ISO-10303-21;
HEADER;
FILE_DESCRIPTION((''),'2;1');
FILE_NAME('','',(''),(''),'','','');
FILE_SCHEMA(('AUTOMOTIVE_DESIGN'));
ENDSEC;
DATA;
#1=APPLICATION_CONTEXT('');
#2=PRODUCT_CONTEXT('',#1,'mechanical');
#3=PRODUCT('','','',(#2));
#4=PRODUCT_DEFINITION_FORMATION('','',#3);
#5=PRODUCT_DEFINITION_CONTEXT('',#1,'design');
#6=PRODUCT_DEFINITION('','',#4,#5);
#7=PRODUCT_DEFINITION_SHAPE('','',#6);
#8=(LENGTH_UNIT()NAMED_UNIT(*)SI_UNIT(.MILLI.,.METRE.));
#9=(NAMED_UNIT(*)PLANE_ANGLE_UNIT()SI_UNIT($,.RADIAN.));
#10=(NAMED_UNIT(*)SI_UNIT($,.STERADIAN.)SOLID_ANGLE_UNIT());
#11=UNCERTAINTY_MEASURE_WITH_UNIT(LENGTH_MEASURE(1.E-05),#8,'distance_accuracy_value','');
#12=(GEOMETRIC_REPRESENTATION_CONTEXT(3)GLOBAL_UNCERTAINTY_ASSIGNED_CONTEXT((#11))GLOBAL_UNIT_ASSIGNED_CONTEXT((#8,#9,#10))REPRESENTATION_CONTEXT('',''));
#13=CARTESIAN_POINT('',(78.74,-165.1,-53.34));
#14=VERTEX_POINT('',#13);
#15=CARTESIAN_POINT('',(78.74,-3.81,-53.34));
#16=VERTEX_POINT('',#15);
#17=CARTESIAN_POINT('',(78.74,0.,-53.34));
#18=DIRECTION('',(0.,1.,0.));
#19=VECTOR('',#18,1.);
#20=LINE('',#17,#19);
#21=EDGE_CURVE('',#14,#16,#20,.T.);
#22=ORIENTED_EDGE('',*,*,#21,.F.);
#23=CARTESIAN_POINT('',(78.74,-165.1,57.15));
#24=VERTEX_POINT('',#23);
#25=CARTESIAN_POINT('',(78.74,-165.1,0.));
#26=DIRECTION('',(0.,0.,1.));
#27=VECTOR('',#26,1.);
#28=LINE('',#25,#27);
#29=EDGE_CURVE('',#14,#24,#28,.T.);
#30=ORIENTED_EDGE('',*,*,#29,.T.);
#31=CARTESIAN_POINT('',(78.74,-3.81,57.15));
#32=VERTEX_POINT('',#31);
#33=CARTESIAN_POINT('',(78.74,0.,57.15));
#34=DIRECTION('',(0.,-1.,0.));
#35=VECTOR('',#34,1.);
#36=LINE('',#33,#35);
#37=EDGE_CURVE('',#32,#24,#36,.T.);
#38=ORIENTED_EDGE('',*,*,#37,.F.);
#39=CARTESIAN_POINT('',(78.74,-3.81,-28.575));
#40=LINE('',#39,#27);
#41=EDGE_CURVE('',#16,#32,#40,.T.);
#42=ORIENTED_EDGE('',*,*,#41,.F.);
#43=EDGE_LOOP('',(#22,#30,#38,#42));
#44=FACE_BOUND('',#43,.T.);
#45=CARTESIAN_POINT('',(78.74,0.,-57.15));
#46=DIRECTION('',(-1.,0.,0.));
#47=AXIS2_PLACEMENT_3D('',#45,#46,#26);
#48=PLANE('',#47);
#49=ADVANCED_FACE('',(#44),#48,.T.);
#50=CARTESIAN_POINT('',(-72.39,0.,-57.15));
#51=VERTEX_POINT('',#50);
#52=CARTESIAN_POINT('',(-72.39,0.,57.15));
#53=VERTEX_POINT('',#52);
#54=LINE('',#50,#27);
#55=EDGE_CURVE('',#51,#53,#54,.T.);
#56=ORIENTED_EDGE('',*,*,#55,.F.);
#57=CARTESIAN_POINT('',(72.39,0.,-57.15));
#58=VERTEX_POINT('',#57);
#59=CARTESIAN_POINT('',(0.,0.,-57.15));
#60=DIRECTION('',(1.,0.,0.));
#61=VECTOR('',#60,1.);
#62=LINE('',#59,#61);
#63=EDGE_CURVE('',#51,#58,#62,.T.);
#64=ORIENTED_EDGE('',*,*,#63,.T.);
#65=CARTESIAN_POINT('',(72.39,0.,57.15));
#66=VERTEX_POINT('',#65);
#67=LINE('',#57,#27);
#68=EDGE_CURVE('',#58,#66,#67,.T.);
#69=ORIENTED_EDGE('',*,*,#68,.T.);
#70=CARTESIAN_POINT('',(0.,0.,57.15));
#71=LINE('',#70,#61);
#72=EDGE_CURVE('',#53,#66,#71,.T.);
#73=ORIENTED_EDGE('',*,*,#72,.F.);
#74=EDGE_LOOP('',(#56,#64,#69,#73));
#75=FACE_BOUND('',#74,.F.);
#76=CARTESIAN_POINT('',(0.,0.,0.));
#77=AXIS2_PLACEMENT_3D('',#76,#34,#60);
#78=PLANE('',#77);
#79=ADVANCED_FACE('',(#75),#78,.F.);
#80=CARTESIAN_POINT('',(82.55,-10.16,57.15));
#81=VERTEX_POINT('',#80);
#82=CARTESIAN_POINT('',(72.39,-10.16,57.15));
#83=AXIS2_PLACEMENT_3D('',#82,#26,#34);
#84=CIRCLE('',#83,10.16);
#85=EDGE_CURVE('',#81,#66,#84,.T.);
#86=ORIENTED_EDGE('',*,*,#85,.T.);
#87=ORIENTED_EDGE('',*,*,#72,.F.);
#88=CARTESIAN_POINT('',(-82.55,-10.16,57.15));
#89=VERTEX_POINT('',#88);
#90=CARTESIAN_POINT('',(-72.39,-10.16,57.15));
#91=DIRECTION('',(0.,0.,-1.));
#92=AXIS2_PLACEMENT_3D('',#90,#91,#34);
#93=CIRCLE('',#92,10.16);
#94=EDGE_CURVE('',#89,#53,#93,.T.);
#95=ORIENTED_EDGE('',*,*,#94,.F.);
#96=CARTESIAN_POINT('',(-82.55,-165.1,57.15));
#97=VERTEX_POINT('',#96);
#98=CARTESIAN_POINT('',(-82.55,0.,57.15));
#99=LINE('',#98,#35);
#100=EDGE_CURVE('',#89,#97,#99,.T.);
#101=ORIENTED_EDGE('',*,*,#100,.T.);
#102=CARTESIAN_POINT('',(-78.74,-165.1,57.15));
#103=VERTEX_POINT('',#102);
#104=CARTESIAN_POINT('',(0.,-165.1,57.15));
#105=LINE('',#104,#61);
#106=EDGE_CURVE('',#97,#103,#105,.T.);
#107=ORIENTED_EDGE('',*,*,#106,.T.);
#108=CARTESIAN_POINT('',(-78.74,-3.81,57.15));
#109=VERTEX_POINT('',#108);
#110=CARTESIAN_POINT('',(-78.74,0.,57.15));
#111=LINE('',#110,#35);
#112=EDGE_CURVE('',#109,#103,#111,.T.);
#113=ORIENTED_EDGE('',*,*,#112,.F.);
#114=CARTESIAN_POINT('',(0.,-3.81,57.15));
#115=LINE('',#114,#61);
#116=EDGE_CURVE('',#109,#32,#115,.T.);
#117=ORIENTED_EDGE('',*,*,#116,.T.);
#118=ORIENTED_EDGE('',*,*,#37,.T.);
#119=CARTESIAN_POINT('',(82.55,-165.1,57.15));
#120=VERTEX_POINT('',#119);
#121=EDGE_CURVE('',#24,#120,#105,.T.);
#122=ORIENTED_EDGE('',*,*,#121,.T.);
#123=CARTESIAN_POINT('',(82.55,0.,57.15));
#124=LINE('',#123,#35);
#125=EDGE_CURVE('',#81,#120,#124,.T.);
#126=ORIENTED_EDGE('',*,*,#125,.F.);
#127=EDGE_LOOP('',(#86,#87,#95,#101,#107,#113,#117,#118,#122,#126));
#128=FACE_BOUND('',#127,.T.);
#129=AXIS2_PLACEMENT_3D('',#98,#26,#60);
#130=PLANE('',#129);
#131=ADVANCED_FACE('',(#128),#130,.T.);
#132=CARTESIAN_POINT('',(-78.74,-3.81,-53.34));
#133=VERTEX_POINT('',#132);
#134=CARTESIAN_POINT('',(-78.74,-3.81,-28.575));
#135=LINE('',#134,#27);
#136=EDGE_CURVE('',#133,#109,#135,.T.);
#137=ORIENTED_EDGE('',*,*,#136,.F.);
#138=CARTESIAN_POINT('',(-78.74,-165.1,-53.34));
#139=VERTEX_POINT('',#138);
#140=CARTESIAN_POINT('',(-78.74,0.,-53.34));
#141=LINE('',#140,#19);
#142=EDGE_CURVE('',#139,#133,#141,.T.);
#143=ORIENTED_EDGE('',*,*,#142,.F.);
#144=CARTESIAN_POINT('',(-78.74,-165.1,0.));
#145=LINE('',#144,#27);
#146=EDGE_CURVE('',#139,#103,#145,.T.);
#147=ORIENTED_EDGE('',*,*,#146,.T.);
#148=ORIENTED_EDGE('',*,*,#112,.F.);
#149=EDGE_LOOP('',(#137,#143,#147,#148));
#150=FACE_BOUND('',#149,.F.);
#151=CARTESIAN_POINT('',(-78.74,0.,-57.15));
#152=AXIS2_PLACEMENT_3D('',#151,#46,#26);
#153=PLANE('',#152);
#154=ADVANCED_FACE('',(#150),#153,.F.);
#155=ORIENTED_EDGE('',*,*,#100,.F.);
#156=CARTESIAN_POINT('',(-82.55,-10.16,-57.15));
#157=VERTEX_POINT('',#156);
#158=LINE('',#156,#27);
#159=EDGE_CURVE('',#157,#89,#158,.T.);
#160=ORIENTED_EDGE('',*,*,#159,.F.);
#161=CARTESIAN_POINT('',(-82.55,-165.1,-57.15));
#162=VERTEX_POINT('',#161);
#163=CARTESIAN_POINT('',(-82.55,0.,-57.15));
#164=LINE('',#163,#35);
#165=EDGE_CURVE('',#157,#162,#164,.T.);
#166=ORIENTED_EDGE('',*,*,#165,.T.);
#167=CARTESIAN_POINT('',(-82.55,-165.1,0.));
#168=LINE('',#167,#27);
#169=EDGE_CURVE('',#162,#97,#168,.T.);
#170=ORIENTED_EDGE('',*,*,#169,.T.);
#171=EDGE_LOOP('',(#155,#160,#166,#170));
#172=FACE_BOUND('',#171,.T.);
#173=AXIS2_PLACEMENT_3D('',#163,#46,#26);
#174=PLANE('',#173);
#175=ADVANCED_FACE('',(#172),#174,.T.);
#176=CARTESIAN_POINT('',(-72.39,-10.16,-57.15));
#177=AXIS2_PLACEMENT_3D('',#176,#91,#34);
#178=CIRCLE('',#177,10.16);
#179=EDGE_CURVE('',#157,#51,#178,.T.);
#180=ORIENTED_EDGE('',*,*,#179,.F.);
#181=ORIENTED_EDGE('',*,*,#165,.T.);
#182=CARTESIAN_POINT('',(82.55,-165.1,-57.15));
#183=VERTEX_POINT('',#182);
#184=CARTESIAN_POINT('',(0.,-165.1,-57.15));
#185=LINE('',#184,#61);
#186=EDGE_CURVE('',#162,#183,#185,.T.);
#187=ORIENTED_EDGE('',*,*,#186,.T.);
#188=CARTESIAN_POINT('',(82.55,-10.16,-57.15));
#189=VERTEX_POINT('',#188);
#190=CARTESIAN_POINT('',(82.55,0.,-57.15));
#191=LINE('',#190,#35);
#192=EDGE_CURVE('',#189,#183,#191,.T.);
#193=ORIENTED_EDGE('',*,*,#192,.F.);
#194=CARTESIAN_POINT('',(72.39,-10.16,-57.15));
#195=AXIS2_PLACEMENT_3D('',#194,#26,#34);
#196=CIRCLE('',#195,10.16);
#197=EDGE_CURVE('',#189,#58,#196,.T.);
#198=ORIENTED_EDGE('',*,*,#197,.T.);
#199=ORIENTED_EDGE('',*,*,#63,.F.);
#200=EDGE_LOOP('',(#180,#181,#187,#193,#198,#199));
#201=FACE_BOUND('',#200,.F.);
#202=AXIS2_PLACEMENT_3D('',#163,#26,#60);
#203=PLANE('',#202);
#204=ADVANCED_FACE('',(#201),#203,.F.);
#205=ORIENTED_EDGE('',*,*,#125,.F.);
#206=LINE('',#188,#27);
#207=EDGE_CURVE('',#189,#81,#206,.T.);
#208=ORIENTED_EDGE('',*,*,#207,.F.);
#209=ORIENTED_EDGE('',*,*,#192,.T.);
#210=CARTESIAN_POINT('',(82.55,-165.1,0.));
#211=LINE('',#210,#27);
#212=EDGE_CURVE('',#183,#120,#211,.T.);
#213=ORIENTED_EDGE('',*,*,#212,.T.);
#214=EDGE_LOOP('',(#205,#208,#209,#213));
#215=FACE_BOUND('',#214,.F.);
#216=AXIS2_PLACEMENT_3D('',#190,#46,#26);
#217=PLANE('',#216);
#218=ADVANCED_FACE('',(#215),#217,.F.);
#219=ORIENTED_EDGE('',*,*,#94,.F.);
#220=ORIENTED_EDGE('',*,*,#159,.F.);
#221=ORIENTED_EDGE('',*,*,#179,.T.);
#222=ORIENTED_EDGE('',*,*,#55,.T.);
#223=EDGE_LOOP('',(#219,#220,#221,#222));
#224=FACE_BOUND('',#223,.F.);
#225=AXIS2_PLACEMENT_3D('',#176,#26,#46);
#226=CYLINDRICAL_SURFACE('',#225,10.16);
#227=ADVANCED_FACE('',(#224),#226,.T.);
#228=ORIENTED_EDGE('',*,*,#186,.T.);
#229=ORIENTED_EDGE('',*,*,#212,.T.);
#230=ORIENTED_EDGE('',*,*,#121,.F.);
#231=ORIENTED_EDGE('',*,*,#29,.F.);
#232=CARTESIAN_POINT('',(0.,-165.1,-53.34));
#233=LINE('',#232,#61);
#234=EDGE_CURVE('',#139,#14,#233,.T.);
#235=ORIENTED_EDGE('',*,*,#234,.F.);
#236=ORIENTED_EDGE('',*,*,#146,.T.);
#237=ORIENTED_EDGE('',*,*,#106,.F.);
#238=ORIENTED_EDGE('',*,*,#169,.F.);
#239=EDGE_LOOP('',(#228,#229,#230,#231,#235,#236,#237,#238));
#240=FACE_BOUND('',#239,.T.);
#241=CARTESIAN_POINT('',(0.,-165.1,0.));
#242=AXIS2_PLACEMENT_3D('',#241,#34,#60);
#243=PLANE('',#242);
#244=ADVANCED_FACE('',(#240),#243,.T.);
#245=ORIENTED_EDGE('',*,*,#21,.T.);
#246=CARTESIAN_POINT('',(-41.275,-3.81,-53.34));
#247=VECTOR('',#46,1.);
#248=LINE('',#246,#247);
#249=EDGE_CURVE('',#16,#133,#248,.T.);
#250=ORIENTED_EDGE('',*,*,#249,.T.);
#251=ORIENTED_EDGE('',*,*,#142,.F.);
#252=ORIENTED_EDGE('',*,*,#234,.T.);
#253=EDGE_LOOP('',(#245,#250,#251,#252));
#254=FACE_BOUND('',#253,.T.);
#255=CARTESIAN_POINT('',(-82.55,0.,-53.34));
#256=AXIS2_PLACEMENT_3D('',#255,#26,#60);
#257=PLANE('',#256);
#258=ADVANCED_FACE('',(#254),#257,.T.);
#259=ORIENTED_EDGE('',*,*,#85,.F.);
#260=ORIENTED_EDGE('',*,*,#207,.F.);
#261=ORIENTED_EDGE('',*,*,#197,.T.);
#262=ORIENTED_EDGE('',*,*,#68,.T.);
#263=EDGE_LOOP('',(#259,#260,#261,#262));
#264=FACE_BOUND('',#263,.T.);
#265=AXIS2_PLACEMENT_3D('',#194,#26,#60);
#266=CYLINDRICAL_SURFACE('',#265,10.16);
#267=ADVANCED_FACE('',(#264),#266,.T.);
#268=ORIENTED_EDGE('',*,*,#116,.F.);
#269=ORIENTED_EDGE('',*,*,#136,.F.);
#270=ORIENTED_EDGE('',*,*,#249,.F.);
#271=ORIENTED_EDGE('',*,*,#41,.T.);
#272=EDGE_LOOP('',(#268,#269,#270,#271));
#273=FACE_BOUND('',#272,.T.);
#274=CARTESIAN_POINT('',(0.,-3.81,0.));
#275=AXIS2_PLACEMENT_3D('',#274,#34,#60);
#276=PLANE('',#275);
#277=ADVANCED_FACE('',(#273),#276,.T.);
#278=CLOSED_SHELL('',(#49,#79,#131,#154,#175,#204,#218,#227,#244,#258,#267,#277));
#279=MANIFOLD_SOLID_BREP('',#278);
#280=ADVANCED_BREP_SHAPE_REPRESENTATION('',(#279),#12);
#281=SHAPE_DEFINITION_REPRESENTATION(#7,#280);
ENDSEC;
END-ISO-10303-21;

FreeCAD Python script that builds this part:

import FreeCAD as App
import Part
import Sketcher

V = App.Vector
Q = App.Units.Quantity


def edges_at(feature, points):
    """Names of the edges that pass closest to the given points."""
    edges = feature.Shape.Edges
    near = lambda p: min(range(len(edges)), key=lambda i: edges[i].distToShape(Part.Vertex(*p))[0])
    return sorted({f"Edge{near(p) + 1}" for p in points})


def faces_at(feature, points):
    """Names of the faces that lie closest to the given points."""
    faces = feature.Shape.Faces
    near = lambda p: min(range(len(faces)), key=lambda i: faces[i].distToShape(Part.Vertex(*p))[0])
    return sorted({f"Face{near(p) + 1}" for p in points})

doc = App.newDocument("Part")
body = doc.addObject("PartDesign::Body", "Body")

sketch1 = body.newObject("Sketcher::SketchObject", "Sketch")
sketch1.AttachmentSupport = (doc.getObject("XZ_Plane"), [""])
sketch1.MapMode = "FlatFace"
sketch1.addGeometry([
    Part.LineSegment(V(-83, 57, 0), V(-83, -57, 0)),
    Part.LineSegment(V(-83, -57, 0), V(83, -57, 0)),
    Part.LineSegment(V(83, -57, 0), V(83, 57, 0)),
    Part.LineSegment(V(83, 57, 0), V(-83, 57, 0)),
], False)
sketch1.addConstraint([
    Sketcher.Constraint("Coincident", 0, 2, 1, 1),
    Sketcher.Constraint("Coincident", 1, 2, 2, 1),
    Sketcher.Constraint("Coincident", 2, 2, 3, 1),
    Sketcher.Constraint("Coincident", 3, 2, 0, 1),
    Sketcher.Constraint("Vertical", 0),
    Sketcher.Constraint("Horizontal", 1),
    Sketcher.Constraint("Vertical", 2),
    Sketcher.Constraint("Horizontal", 3),
    Sketcher.Constraint("Symmetric", 0, 2, 2, 2, -1, 1),
    Sketcher.Constraint("DistanceX", 1, 1, 1, 2, Q("6.5 in")),
    Sketcher.Constraint("DistanceY", 0, 2, 0, 1, Q("4.5 in")),
])
pad1 = body.newObject("PartDesign::Pad", "Pad")
pad1.Profile = sketch1
pad1.Length = Q("6.5 in")
doc.recompute()

thickness = body.newObject("PartDesign::Thickness", "Thickness")
thickness.Base = (pad1, faces_at(pad1, [(0, -165.1, 0), (0, -82.55, 57.15)]))
thickness.Value = Q("0.15 in")
thickness.Reversed = True
thickness.Join = "Arc"
doc.recompute()

fillet = body.newObject("PartDesign::Fillet", "Fillet")
fillet.Base = (thickness, edges_at(thickness, [(82.55, 0, 0), (-82.55, 0, 0)]))
fillet.Radius = Q("0.4 in")

doc.recompute()
